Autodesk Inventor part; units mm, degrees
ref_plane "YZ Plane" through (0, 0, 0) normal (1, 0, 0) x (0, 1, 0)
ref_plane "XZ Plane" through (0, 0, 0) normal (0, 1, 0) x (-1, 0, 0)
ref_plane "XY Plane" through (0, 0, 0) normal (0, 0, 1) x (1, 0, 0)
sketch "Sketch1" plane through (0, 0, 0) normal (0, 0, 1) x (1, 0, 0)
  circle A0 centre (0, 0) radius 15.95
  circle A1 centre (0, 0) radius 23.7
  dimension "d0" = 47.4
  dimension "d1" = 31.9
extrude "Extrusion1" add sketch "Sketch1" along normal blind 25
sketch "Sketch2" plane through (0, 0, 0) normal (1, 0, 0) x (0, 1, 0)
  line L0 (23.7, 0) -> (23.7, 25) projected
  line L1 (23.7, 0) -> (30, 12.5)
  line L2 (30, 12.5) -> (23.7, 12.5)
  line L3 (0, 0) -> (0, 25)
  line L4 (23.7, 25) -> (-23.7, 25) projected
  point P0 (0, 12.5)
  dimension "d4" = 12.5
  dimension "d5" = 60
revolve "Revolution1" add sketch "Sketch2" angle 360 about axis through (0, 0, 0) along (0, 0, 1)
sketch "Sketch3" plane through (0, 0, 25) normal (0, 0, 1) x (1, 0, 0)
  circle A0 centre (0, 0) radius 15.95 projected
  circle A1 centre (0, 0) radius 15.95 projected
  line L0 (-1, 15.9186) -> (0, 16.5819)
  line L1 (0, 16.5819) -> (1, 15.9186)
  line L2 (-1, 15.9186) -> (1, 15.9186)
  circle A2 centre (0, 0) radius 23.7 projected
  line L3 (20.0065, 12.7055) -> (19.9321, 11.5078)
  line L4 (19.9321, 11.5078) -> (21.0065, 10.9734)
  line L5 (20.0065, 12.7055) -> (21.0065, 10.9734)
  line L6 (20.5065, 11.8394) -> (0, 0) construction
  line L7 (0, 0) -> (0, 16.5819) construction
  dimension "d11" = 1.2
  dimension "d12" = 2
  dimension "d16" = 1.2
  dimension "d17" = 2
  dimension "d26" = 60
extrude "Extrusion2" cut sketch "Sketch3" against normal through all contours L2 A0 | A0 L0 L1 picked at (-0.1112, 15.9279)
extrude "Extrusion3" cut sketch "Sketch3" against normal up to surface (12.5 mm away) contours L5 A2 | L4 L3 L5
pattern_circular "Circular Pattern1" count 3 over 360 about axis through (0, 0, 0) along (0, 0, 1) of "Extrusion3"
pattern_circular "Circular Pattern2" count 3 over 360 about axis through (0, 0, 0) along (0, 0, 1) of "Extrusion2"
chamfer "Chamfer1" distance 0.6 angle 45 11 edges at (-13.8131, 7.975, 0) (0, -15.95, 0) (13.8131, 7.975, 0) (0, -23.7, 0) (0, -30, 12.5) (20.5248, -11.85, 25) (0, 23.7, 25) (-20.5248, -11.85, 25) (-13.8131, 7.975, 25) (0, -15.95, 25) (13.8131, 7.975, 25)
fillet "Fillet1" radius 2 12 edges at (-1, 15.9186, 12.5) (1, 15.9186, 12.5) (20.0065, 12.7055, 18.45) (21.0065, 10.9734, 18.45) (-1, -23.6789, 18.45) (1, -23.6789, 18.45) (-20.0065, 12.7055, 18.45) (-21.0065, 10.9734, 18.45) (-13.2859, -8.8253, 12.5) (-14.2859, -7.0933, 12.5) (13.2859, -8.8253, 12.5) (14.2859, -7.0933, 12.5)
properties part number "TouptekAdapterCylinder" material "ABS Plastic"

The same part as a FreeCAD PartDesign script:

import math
import FreeCAD as App
import Part
import Sketcher
from FreeCAD import Vector


def edges_at(feature, points):
    """Names of the edges that pass closest to the given points."""
    edges = feature.Shape.Edges
    near = lambda p: min(range(len(edges)), key=lambda i: edges[i].distToShape(Part.Vertex(*p))[0])
    return sorted({f"Edge{near(p) + 1}" for p in points})

doc = App.newDocument("Part")
body = doc.addObject("PartDesign::Body", "Body")

# Sketch on XY plane
sketch1 = body.newObject("Sketcher::SketchObject", "Sketch")
sketch1.AttachmentSupport = (doc.getObject("XY_Plane"), [""])
sketch1.MapMode = "FlatFace"
sketch1.addGeometry([
    Part.Circle(Vector(0, 0, 0), Vector(0, 0, 1), 24),
    Part.Circle(Vector(0, 0, 0), Vector(0, 0, 1), 16),
], False)
sketch1.addConstraint([
    Sketcher.Constraint("Coincident", 0, 3, -1, 1),
    Sketcher.Constraint("Coincident", 1, 3, -1, 1),
    Sketcher.Constraint("Diameter", 0, 47.4),
    Sketcher.Constraint("Diameter", 1, 31.9),
])
pad1 = body.newObject("PartDesign::Pad", "Pad")
pad1.Profile = sketch1
pad1.Length = 25

# Sketch on YZ plane
sketch2 = body.newObject("Sketcher::SketchObject", "Sketch001")
sketch2.AttachmentSupport = (doc.getObject("YZ_Plane"), [""])
sketch2.MapMode = "FlatFace"
sketch2.addGeometry([
    Part.LineSegment(Vector(24, 12, 0), Vector(24, 0, 0)),
    Part.LineSegment(Vector(24, 0, 0), Vector(30, 12, 0)),
    Part.LineSegment(Vector(30, 12, 0), Vector(24, 12, 0)),
], False)
sketch2.addConstraint([
    Sketcher.Constraint("Coincident", 0, 2, 1, 1),
    Sketcher.Constraint("Coincident", 1, 2, 2, 1),
    Sketcher.Constraint("Coincident", 2, 2, 0, 1),
    Sketcher.Constraint("Vertical", 0),
    Sketcher.Constraint("Horizontal", 2),
    Sketcher.Constraint("PointOnObject", 0, 2, -1),
    Sketcher.Constraint("DistanceY", 0, 2, 0, 1, 12.5),
    Sketcher.Constraint("DistanceX", 2, 2, 2, 1, 6.3),
    Sketcher.Constraint("DistanceX", -1, 1, 1, 2, 30.0),
])
revolution = body.newObject("PartDesign::Revolution", "Revolution")
revolution.Profile = sketch2
revolution.ReferenceAxis = (sketch2, ["V_Axis"])
revolution.Angle = 360

# Sketch on XY plane
sketch3 = body.newObject("Sketcher::SketchObject", "Sketch002")
sketch3.AttachmentSupport = (doc.getObject("XY_Plane"), [""])
sketch3.MapMode = "FlatFace"
sketch3.AttachmentOffset = App.Placement(Vector(0, 0, 25), App.Rotation())
sketch3.addGeometry([
    Part.LineSegment(Vector(-1, 15.9, 0), Vector(1, 15.9, 0)),
    Part.LineSegment(Vector(1, 15.9, 0), Vector(0, 16.6, 0)),
    Part.LineSegment(Vector(0, 16.6, 0), Vector(-1, 15.9, 0)),
], False)
sketch3.addConstraint([
    Sketcher.Constraint("Coincident", 0, 2, 1, 1),
    Sketcher.Constraint("Coincident", 1, 2, 2, 1),
    Sketcher.Constraint("Coincident", 2, 2, 0, 1),
    Sketcher.Constraint("Horizontal", 0),
    Sketcher.Constraint("PointOnObject", 1, 2, -2),
    Sketcher.Constraint("Equal", 1, 2),
    Sketcher.Constraint("DistanceX", 0, 1, 0, 2, 2.0),
    Sketcher.Constraint("Distance", 1, 1.2),
    Sketcher.Constraint("DistanceY", -1, 1, 1, 2, 16.582),
])
pocket1 = body.newObject("PartDesign::Pocket", "Pocket")
pocket1.Profile = sketch3
pocket1.Type = "ThroughAll"

# Sketch on XY plane
sketch4 = body.newObject("Sketcher::SketchObject", "Sketch003")
sketch4.AttachmentSupport = (doc.getObject("XY_Plane"), [""])
sketch4.MapMode = "FlatFace"
sketch4.AttachmentOffset = App.Placement(Vector(0, 0, 25), App.Rotation())
sketch4.addGeometry([
    Part.ArcOfCircle(Part.Circle(Vector(0, 0, 0), Vector(0, 0, 1), 23.7), math.radians(27.58), math.radians(32.42)),
    Part.LineSegment(Vector(20, 12.7, 0), Vector(19.9, 11.5, 0)),
    Part.LineSegment(Vector(19.9, 11.5, 0), Vector(21, 11, 0)),
], False)
sketch4.addConstraint([
    Sketcher.Constraint("Coincident", 0, 2, 1, 1),
    Sketcher.Constraint("Coincident", 1, 2, 2, 1),
    Sketcher.Constraint("Coincident", 2, 2, 0, 1),
    Sketcher.Constraint("Coincident", 0, 3, -1, 1),
    Sketcher.Constraint("Equal", 1, 2),
    Sketcher.Constraint("Distance", 1, 1.2),
    Sketcher.Constraint("Radius", 0, 23.7),
    Sketcher.Constraint("DistanceX", 0, 2, 2, 2, 1.0),
    Sketcher.Constraint("DistanceX", -1, 1, 1, 2, 19.932),
])
pocket2 = body.newObject("PartDesign::Pocket", "Pocket001")
pocket2.Profile = sketch4
pocket2.Length = 12.5
doc.recompute()

polarpattern = body.newObject("PartDesign::PolarPattern", "PolarPattern")
polarpattern.Originals = [pocket2]
polarpattern.Axis = (doc.getObject("Z_Axis"), [""])
polarpattern.Angle = 360
polarpattern.Occurrences = 3
body.Tip = polarpattern
doc.recompute()

polarpattern2 = body.newObject("PartDesign::PolarPattern", "PolarPattern001")
polarpattern2.Originals = [pocket1]
polarpattern2.Axis = (doc.getObject("Z_Axis"), [""])
polarpattern2.Angle = 360
polarpattern2.Occurrences = 3
body.Tip = polarpattern2
doc.recompute()

chamfer = body.newObject("PartDesign::Chamfer", "Chamfer")
chamfer.Base = (polarpattern2, edges_at(polarpattern2, [
    (-13.813, 7.975, 0),
    (0, -15.95, 0),
    (13.813, 7.975, 0),
    (0, -23.7, 0),
    (0, -30, 12.5),
    (20.525, -11.85, 25),
    (0, 23.7, 25),
    (-20.525, -11.85, 25),
    (-13.813, 7.975, 25),
    (0, -15.95, 25),
    (13.813, 7.975, 25),
]))
chamfer.Size = 0.6
doc.recompute()

fillet = body.newObject("PartDesign::Fillet", "Fillet")
fillet.Base = (chamfer, edges_at(chamfer, [
    (-1, 15.919, 12.5),
    (1, 15.919, 12.5),
    (20.006, 12.706, 18.45),
    (21.006, 10.973, 18.45),
    (-1, -23.679, 18.45),
    (1, -23.679, 18.45),
    (-20.006, 12.706, 18.45),
    (-21.006, 10.973, 18.45),
    (-13.286, -8.825, 12.5),
    (-14.286, -7.093, 12.5),
    (13.286, -8.825, 12.5),
    (14.286, -7.093, 12.5),
]))
fillet.Radius = 2

doc.recompute()
